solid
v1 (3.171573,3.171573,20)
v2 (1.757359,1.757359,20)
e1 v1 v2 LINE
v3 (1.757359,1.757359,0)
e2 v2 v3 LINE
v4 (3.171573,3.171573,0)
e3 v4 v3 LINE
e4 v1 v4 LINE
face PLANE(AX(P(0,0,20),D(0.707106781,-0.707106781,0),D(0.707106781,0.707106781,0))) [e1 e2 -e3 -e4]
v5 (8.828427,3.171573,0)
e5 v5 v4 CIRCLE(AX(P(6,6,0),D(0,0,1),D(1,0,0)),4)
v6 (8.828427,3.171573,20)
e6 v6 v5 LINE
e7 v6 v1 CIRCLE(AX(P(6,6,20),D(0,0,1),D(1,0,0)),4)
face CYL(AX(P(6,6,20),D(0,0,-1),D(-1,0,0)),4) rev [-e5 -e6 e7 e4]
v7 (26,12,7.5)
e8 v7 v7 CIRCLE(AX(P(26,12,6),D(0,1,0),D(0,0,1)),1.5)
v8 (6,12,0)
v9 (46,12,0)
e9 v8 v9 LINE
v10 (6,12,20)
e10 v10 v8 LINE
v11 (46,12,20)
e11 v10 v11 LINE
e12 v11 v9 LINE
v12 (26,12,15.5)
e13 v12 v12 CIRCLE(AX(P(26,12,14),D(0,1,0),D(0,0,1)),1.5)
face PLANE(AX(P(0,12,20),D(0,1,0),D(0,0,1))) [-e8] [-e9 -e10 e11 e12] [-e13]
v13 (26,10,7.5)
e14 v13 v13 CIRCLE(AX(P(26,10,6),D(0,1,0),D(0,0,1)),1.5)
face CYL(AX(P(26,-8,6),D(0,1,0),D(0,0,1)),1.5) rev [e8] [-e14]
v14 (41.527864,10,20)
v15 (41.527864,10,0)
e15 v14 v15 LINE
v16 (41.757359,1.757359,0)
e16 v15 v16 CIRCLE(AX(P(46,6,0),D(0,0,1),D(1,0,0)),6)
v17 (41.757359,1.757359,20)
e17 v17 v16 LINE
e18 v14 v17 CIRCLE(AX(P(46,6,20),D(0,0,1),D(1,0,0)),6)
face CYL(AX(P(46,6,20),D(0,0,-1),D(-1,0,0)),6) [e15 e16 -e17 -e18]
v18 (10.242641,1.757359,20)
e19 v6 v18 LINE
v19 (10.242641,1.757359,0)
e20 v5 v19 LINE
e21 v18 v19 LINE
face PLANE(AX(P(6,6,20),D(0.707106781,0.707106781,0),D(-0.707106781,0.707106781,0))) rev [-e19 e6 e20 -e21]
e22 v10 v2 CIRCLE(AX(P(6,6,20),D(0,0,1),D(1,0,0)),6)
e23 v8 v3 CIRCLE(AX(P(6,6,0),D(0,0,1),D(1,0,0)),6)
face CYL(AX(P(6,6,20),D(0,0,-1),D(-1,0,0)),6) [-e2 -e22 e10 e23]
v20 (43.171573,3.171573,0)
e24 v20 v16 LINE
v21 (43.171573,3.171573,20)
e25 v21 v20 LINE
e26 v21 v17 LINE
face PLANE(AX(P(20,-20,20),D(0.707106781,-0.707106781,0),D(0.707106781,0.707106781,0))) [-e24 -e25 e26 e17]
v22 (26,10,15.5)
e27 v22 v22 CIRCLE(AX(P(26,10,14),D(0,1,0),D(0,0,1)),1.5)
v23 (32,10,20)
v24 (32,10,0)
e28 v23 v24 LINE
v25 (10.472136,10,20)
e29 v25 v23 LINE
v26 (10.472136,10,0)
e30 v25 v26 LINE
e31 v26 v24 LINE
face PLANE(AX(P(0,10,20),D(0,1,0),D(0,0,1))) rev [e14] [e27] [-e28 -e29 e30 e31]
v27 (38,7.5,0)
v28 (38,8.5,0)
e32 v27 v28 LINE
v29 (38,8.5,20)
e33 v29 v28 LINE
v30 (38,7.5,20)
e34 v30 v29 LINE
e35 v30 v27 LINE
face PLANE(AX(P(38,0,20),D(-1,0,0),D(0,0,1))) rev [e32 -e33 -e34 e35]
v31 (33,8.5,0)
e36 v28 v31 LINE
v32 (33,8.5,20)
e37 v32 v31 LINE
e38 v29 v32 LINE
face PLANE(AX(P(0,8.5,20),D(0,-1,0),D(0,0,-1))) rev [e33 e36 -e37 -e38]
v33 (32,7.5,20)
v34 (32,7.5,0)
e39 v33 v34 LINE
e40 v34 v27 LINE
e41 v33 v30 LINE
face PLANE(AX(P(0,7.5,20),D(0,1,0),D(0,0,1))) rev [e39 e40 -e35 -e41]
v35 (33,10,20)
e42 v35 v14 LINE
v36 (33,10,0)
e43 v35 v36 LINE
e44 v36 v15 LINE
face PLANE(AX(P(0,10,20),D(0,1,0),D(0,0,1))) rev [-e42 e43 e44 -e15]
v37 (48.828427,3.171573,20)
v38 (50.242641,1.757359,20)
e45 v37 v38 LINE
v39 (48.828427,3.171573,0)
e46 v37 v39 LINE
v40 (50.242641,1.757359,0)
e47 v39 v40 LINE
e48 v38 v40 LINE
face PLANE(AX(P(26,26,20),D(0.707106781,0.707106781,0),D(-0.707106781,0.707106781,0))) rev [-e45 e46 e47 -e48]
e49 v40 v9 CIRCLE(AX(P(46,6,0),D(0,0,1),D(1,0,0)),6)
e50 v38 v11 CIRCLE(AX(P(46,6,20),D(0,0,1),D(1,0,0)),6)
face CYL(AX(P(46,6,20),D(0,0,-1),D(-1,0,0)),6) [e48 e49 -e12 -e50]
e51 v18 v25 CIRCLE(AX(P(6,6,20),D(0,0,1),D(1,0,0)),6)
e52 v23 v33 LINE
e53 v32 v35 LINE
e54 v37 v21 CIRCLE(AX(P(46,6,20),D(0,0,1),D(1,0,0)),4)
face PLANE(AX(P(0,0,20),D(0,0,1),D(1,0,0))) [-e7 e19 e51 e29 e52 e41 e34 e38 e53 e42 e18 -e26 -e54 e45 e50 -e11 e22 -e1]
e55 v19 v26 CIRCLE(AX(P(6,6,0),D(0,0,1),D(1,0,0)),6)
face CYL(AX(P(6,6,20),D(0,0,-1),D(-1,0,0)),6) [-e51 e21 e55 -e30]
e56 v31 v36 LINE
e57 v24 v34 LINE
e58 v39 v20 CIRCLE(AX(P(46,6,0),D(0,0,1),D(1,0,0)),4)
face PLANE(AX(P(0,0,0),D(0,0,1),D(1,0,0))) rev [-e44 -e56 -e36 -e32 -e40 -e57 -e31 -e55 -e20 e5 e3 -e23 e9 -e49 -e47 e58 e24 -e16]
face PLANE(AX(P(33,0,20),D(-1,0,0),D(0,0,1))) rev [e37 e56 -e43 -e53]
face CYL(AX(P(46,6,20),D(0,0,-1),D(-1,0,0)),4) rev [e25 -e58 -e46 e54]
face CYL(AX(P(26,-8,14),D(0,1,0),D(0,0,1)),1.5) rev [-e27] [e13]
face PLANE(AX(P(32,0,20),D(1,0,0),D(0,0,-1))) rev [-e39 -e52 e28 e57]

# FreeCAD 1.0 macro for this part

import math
import FreeCAD as App
import Part
import Sketcher

doc = App.newDocument("Part")
params = doc.addObject("Spreadsheet::Sheet", "Params")
for row, (alias, value) in enumerate([
    ("sketch1_radius", "6 mm"),
    ("sketch1_radius2", "4 mm"),
    ("sketch1_width", "40 mm"),
    ("sketch1_width2", "6 mm"),
    ("sketch1_width3", "5 mm"),
    ("pad1_length", "20 mm"),
    ("sketch2_diameter", "3 mm"),
    ("pocket1_length", "20 mm"),
], start=1):
    params.set(f"A{row}", alias)
    params.set(f"B{row}", "=" + value)
    params.setAlias(f"B{row}", alias)

body = doc.addObject("PartDesign::Body", "Body")

sketch1 = doc.addObject("Sketcher::SketchObject", "Sketch")
body.addObject(sketch1)
sketch1.AttachmentSupport = (doc.XY_Plane, [""])
sketch1.MapMode = "FlatFace"
sketch1.addGeometry([
    Part.LineSegment(App.Vector(46, 12, 0), App.Vector(6, 12, 0)),
    Part.ArcOfCircle(Part.Circle(App.Vector(6, 6, 0), App.Vector(0, 0, 1), 6), math.radians(90), math.radians(225)),
    Part.LineSegment(App.Vector(1.8, 1.8, 0), App.Vector(3.2, 3.2, 0)),
    Part.ArcOfCircle(Part.Circle(App.Vector(6, 6, 0), App.Vector(0, 0, 1), 4), math.radians(-45), math.radians(225)),
    Part.LineSegment(App.Vector(8.8, 3.2, 0), App.Vector(10.2, 1.8, 0)),
    Part.ArcOfCircle(Part.Circle(App.Vector(6, 6, 0), App.Vector(0, 0, 1), 6), math.radians(-45), math.radians(42)),
    Part.LineSegment(App.Vector(10.5, 10, 0), App.Vector(32, 10, 0)),
    Part.LineSegment(App.Vector(32, 10, 0), App.Vector(32, 7.5, 0)),
    Part.LineSegment(App.Vector(32, 7.5, 0), App.Vector(38, 7.5, 0)),
    Part.LineSegment(App.Vector(38, 7.5, 0), App.Vector(38, 8.5, 0)),
    Part.LineSegment(App.Vector(38, 8.5, 0), App.Vector(33, 8.5, 0)),
    Part.LineSegment(App.Vector(33, 8.5, 0), App.Vector(33, 10, 0)),
    Part.LineSegment(App.Vector(33, 10, 0), App.Vector(41.5, 10, 0)),
    Part.ArcOfCircle(Part.Circle(App.Vector(46, 6, 0), App.Vector(0, 0, 1), 6), math.radians(138), math.radians(225)),
    Part.LineSegment(App.Vector(41.8, 1.8, 0), App.Vector(43.2, 3.2, 0)),
    Part.ArcOfCircle(Part.Circle(App.Vector(46, 6, 0), App.Vector(0, 0, 1), 4), math.radians(-45), math.radians(225)),
    Part.LineSegment(App.Vector(48.8, 3.2, 0), App.Vector(50.2, 1.8, 0)),
    Part.ArcOfCircle(Part.Circle(App.Vector(46, 6, 0), App.Vector(0, 0, 1), 6), math.radians(-45), math.radians(90)),
], False)
sketch1.addConstraint([
    Sketcher.Constraint("Tangent", 0, 2, 1, 1),
    Sketcher.Constraint("Coincident", 1, 2, 2, 1),
    Sketcher.Constraint("Coincident", 2, 2, 3, 2),
    Sketcher.Constraint("Coincident", 3, 1, 4, 1),
    Sketcher.Constraint("Coincident", 4, 2, 5, 1),
    Sketcher.Constraint("Coincident", 5, 2, 6, 1),
    Sketcher.Constraint("Coincident", 6, 2, 7, 1),
    Sketcher.Constraint("Coincident", 7, 2, 8, 1),
    Sketcher.Constraint("Coincident", 8, 2, 9, 1),
    Sketcher.Constraint("Coincident", 9, 2, 10, 1),
    Sketcher.Constraint("Coincident", 10, 2, 11, 1),
    Sketcher.Constraint("Coincident", 11, 2, 12, 1),
    Sketcher.Constraint("Coincident", 12, 2, 13, 1),
    Sketcher.Constraint("Coincident", 13, 2, 14, 1),
    Sketcher.Constraint("Coincident", 14, 2, 15, 2),
    Sketcher.Constraint("Coincident", 15, 1, 16, 1),
    Sketcher.Constraint("Coincident", 16, 2, 17, 1),
    Sketcher.Constraint("Tangent", 17, 2, 0, 1),
    Sketcher.Constraint("Horizontal", 0),
    Sketcher.Constraint("Horizontal", 6),
    Sketcher.Constraint("Vertical", 7),
    Sketcher.Constraint("Horizontal", 8),
    Sketcher.Constraint("Vertical", 9),
    Sketcher.Constraint("Horizontal", 10),
    Sketcher.Constraint("Vertical", 11),
    Sketcher.Constraint("Horizontal", 12),
    Sketcher.Constraint("Coincident", 3, 3, 1, 3),
    Sketcher.Constraint("Coincident", 5, 3, 1, 3),
    Sketcher.Constraint("Coincident", 15, 3, 13, 3),
    Sketcher.Constraint("Coincident", 17, 3, 13, 3),
    Sketcher.Constraint("Equal", 1, 5),
    Sketcher.Constraint("Equal", 5, 13),
    Sketcher.Constraint("Equal", 3, 15),
    Sketcher.Constraint("Equal", 13, 17),
    Sketcher.Constraint("Perpendicular", 2, 4),
    Sketcher.Constraint("Perpendicular", 4, 14),
    Sketcher.Constraint("Perpendicular", 14, 16),
    Sketcher.Constraint("Horizontal", 2, 2, 3, 1),
    Sketcher.Constraint("Horizontal", 1, 2, 4, 2),
    Sketcher.Constraint("Horizontal", 6, 2, 11, 2),
    Sketcher.Constraint("Horizontal", 4, 2, 13, 2),
    Sketcher.Constraint("Horizontal", 14, 2, 15, 1),
    Sketcher.Constraint("Radius", 1, 6.0),
    Sketcher.Constraint("Radius", 3, 4.0),
    Sketcher.Constraint("DistanceX", 0, 2, 0, 1, 40.0),
    Sketcher.Constraint("DistanceX", 8, 1, 8, 2, 6.0),
    Sketcher.Constraint("DistanceX", 10, 2, 10, 1, 5.0),
    Sketcher.Constraint("DistanceY", 9, 1, 9, 2, 1.0),
    Sketcher.Constraint("DistanceY", 7, 2, 7, 1, 2.5),
    Sketcher.Constraint("DistanceX", -1, 1, 1, 3, 6.0),
    Sketcher.Constraint("DistanceY", -1, 1, 1, 3, 6.0),
    Sketcher.Constraint("DistanceY", -1, 1, 5, 2, 10.0),
    Sketcher.Constraint("DistanceX", -1, 1, 6, 2, 32.0),
    Sketcher.Constraint("DistanceX", -1, 1, 1, 2, 1.757359),
])
sketch1.setExpression("Constraints[42]", "Params.sketch1_radius")
sketch1.setExpression("Constraints[43]", "Params.sketch1_radius2")
sketch1.setExpression("Constraints[44]", "Params.sketch1_width")
sketch1.setExpression("Constraints[45]", "Params.sketch1_width2")
sketch1.setExpression("Constraints[46]", "Params.sketch1_width3")
pad1 = doc.addObject("PartDesign::Pad", "Pad")
body.addObject(pad1)
pad1.Profile = sketch1
pad1.setExpression("Length", "Params.pad1_length")

sketch2 = doc.addObject("Sketcher::SketchObject", "Sketch001")
body.addObject(sketch2)
sketch2.AttachmentSupport = (doc.XZ_Plane, [""])
sketch2.MapMode = "FlatFace"
sketch2.AttachmentOffset = App.Placement(App.Vector(0, 0, -12), App.Rotation())
sketch2.addGeometry([
    Part.Circle(App.Vector(26, 6, 0), App.Vector(0, 0, 1), 1.5),
    Part.Circle(App.Vector(26, 14, 0), App.Vector(0, 0, 1), 1.5),
], False)
sketch2.addConstraint([
    Sketcher.Constraint("Equal", 0, 1),
    Sketcher.Constraint("Vertical", 0, 3, 1, 3),
    Sketcher.Constraint("Diameter", 0, 3.0),
    Sketcher.Constraint("DistanceX", -1, 1, 0, 3, 26.0),
    Sketcher.Constraint("DistanceY", -1, 1, 0, 3, 6.0),
    Sketcher.Constraint("DistanceY", -1, 1, 1, 3, 14.0),
])
sketch2.setExpression("Constraints[2]", "Params.sketch2_diameter")
pocket1 = doc.addObject("PartDesign::Pocket", "Pocket")
body.addObject(pocket1)
pocket1.Profile = sketch2
pocket1.setExpression("Length", "Params.pocket1_length")
pocket1.Reversed = True

doc.recompute()
